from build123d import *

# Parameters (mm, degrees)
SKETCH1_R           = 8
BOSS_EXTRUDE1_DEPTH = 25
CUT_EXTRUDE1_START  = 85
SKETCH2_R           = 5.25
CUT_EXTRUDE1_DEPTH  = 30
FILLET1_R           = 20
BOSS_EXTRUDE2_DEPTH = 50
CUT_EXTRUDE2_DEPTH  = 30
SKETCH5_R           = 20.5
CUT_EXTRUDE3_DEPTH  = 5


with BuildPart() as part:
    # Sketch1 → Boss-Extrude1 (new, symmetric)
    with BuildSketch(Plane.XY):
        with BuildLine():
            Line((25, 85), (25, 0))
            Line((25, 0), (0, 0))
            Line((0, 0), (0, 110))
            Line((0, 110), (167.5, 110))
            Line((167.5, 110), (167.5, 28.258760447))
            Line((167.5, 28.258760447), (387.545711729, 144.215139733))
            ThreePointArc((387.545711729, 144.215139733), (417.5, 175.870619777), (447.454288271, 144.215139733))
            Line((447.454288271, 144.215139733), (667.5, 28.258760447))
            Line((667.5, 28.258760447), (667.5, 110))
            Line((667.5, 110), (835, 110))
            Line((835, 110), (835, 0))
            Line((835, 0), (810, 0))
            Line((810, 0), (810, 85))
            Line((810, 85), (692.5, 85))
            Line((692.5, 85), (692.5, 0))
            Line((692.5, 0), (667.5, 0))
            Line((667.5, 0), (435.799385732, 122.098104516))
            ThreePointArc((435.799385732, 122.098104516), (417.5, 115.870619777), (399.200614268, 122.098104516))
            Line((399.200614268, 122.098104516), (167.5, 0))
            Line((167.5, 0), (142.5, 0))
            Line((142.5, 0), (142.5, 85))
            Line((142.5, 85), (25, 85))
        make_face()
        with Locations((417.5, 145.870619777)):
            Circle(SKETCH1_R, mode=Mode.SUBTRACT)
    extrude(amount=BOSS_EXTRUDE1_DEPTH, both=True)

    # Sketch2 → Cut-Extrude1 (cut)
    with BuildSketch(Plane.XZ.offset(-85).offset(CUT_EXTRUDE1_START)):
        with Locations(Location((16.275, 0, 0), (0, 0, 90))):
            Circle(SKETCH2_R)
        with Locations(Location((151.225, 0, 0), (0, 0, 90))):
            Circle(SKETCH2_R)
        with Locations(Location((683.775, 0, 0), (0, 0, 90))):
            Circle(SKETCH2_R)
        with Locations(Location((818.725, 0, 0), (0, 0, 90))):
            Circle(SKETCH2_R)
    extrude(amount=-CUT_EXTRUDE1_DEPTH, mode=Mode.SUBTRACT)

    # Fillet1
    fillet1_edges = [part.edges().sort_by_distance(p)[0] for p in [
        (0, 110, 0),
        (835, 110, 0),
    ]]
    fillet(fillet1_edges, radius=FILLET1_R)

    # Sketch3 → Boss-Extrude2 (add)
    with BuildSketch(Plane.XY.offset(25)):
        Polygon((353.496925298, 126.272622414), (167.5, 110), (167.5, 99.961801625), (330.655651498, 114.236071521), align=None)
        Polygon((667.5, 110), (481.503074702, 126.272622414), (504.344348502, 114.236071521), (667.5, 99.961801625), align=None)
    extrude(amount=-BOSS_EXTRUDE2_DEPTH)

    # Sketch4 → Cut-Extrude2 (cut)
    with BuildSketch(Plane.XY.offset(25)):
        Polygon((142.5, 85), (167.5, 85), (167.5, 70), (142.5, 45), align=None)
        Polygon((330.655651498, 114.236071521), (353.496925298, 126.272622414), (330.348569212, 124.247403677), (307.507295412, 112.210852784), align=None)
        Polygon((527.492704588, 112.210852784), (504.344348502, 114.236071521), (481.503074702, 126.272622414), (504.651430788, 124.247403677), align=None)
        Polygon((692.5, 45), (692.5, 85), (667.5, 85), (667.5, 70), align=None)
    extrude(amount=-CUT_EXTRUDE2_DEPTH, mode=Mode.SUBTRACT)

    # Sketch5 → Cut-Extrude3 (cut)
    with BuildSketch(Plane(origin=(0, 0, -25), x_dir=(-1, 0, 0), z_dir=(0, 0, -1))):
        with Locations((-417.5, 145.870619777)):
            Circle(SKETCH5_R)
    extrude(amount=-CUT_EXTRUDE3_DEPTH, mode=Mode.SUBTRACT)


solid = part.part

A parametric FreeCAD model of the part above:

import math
import FreeCAD as App
import Part
import Sketcher
from FreeCAD import Vector
Q = App.Units.Quantity


def edges_at(feature, points):
    """Names of the edges that pass closest to the given points."""
    edges = feature.Shape.Edges
    near = lambda p: min(range(len(edges)), key=lambda i: edges[i].distToShape(Part.Vertex(*p))[0])
    return sorted({f"Edge{near(p) + 1}" for p in points})


def add_polygon(sketch, points):
    """Adds a closed chain of lines whose ends are joined by coincident constraints."""
    first, n = sketch.GeometryCount, len(points)
    for a, b in zip(points, points[1:] + points[:1]):
        sketch.addGeometry(Part.LineSegment(App.Vector(*a, 0), App.Vector(*b, 0)), False)
    for i in range(n):
        sketch.addConstraint(Sketcher.Constraint("Coincident", first + i, 2, first + (i + 1) % n, 1))

doc = App.newDocument("Part")
body = doc.addObject("PartDesign::Body", "Body")

# Sketch on XY plane
sketch1 = doc.addObject("Sketcher::SketchObject", "Sketch")
body.addObject(sketch1)
sketch1.AttachmentSupport = (doc.XY_Plane, [""])
sketch1.MapMode = "FlatFace"
sketch1.addGeometry(Part.LineSegment(Vector(25, 0, 0), Vector(25, 85, 0)), False)
sketch1.addGeometry(Part.LineSegment(Vector(25, 85, 0), Vector(142, 85, 0)), False)
sketch1.addGeometry(Part.LineSegment(Vector(142, 85, 0), Vector(142, 0, 0)), False)
sketch1.addGeometry(Part.LineSegment(Vector(142, 0, 0), Vector(168, 0, 0)), False)
sketch1.addGeometry(Part.LineSegment(Vector(168, 0, 0), Vector(399, 122, 0)), False)
sketch1.addGeometry(Part.ArcOfCircle(Part.Circle(Vector(418, 146, 0), Vector(0, 0, 1), 30), math.radians(-128), math.radians(-52)), False)
sketch1.addGeometry(Part.LineSegment(Vector(436, 122, 0), Vector(668, 0, 0)), False)
sketch1.addGeometry(Part.LineSegment(Vector(668, 0, 0), Vector(692, 0, 0)), False)
sketch1.addGeometry(Part.LineSegment(Vector(692, 0, 0), Vector(692, 85, 0)), False)
sketch1.addGeometry(Part.LineSegment(Vector(692, 85, 0), Vector(810, 85, 0)), False)
sketch1.addGeometry(Part.LineSegment(Vector(810, 85, 0), Vector(810, 0, 0)), False)
sketch1.addGeometry(Part.LineSegment(Vector(810, 0, 0), Vector(835, 0, 0)), False)
sketch1.addGeometry(Part.LineSegment(Vector(835, 0, 0), Vector(835, 110, 0)), False)
sketch1.addGeometry(Part.LineSegment(Vector(835, 110, 0), Vector(668, 110, 0)), False)
sketch1.addGeometry(Part.LineSegment(Vector(668, 110, 0), Vector(668, 28, 0)), False)
sketch1.addGeometry(Part.LineSegment(Vector(668, 28, 0), Vector(447, 144, 0)), False)
sketch1.addGeometry(Part.ArcOfCircle(Part.Circle(Vector(418, 146, 0), Vector(0, 0, 1), 30), math.radians(-3), math.radians(183)), False)
sketch1.addGeometry(Part.LineSegment(Vector(388, 144, 0), Vector(168, 28, 0)), False)
sketch1.addGeometry(Part.LineSegment(Vector(168, 28, 0), Vector(168, 110, 0)), False)
sketch1.addGeometry(Part.LineSegment(Vector(168, 110, 0), Vector(0, 110, 0)), False)
sketch1.addGeometry(Part.LineSegment(Vector(0, 110, 0), Vector(0, 0, 0)), False)
sketch1.addGeometry(Part.LineSegment(Vector(0, 0, 0), Vector(25, 0, 0)), False)
sketch1.addGeometry(Part.Circle(Vector(418, 146, 0), Vector(0, 0, 1), 8), False)
sketch1.addConstraint(Sketcher.Constraint("Coincident", 0, 2, 1, 1))
sketch1.addConstraint(Sketcher.Constraint("Coincident", 1, 2, 2, 1))
sketch1.addConstraint(Sketcher.Constraint("Coincident", 2, 2, 3, 1))
sketch1.addConstraint(Sketcher.Constraint("Coincident", 3, 2, 4, 1))
sketch1.addConstraint(Sketcher.Constraint("Coincident", 4, 2, 5, 1))
sketch1.addConstraint(Sketcher.Constraint("Coincident", 5, 2, 6, 1))
sketch1.addConstraint(Sketcher.Constraint("Coincident", 6, 2, 7, 1))
sketch1.addConstraint(Sketcher.Constraint("Coincident", 7, 2, 8, 1))
sketch1.addConstraint(Sketcher.Constraint("Coincident", 8, 2, 9, 1))
sketch1.addConstraint(Sketcher.Constraint("Coincident", 9, 2, 10, 1))
sketch1.addConstraint(Sketcher.Constraint("Coincident", 10, 2, 11, 1))
sketch1.addConstraint(Sketcher.Constraint("Coincident", 11, 2, 12, 1))
sketch1.addConstraint(Sketcher.Constraint("Coincident", 12, 2, 13, 1))
sketch1.addConstraint(Sketcher.Constraint("Coincident", 13, 2, 14, 1))
sketch1.addConstraint(Sketcher.Constraint("Coincident", 14, 2, 15, 1))
sketch1.addConstraint(Sketcher.Constraint("Coincident", 15, 2, 16, 1))
sketch1.addConstraint(Sketcher.Constraint("Coincident", 16, 2, 17, 1))
sketch1.addConstraint(Sketcher.Constraint("Coincident", 17, 2, 18, 1))
sketch1.addConstraint(Sketcher.Constraint("Coincident", 18, 2, 19, 1))
sketch1.addConstraint(Sketcher.Constraint("Coincident", 19, 2, 20, 1))
sketch1.addConstraint(Sketcher.Constraint("Coincident", 20, 2, 21, 1))
sketch1.addConstraint(Sketcher.Constraint("Coincident", 21, 2, 0, 1))
sketch1.addConstraint(Sketcher.Constraint("Vertical", 0))
sketch1.addConstraint(Sketcher.Constraint("Horizontal", 1))
sketch1.addConstraint(Sketcher.Constraint("Vertical", 2))
sketch1.addConstraint(Sketcher.Constraint("Horizontal", 3))
sketch1.addConstraint(Sketcher.Constraint("Horizontal", 7))
sketch1.addConstraint(Sketcher.Constraint("Vertical", 8))
sketch1.addConstraint(Sketcher.Constraint("Horizontal", 9))
sketch1.addConstraint(Sketcher.Constraint("Vertical", 10))
sketch1.addConstraint(Sketcher.Constraint("Horizontal", 11))
sketch1.addConstraint(Sketcher.Constraint("Vertical", 12))
sketch1.addConstraint(Sketcher.Constraint("Horizontal", 13))
sketch1.addConstraint(Sketcher.Constraint("Vertical", 14))
sketch1.addConstraint(Sketcher.Constraint("Vertical", 18))
sketch1.addConstraint(Sketcher.Constraint("Horizontal", 19))
sketch1.addConstraint(Sketcher.Constraint("Vertical", 20))
sketch1.addConstraint(Sketcher.Constraint("Horizontal", 21))
sketch1.addConstraint(Sketcher.Constraint("Coincident", 20, 2, -1, 1))
sketch1.addConstraint(Sketcher.Constraint("Coincident", 16, 3, 5, 3))
sketch1.addConstraint(Sketcher.Constraint("Coincident", 22, 3, 5, 3))
sketch1.addConstraint(Sketcher.Constraint("Equal", 5, 16))
sketch1.addConstraint(Sketcher.Constraint("PointOnObject", 2, 2, -1))
sketch1.addConstraint(Sketcher.Constraint("PointOnObject", 6, 2, -1))
sketch1.addConstraint(Sketcher.Constraint("PointOnObject", 10, 2, -1))
sketch1.addConstraint(Sketcher.Constraint("Parallel", 6, 15))
sketch1.addConstraint(Sketcher.Constraint("Parallel", 4, 17))
sketch1.addConstraint(Sketcher.Constraint("Horizontal", 4, 2, 5, 2))
sketch1.addConstraint(Sketcher.Constraint("Horizontal", 1, 2, 8, 2))
sketch1.addConstraint(Sketcher.Constraint("Horizontal", 15, 2, 16, 2))
sketch1.addConstraint(Sketcher.Constraint("Horizontal", 14, 2, 17, 2))
sketch1.addConstraint(Sketcher.Constraint("Horizontal", 13, 2, 18, 2))
sketch1.addConstraint(Sketcher.Constraint("Vertical", 6, 2, 13, 2))
sketch1.addConstraint(Sketcher.Constraint("Vertical", 3, 2, 17, 2))
sketch1.addConstraint(Sketcher.Constraint("Equal", 3, 7))
sketch1.addConstraint(Sketcher.Constraint("Equal", 1, 9))
sketch1.addConstraint(Sketcher.Constraint("Equal", 7, 11))
sketch1.addConstraint(Sketcher.Constraint("Equal", 13, 19))
sketch1.addConstraint(Sketcher.Constraint("Diameter", 22, 16.0))
sketch1.addConstraint(Sketcher.Constraint("Radius", 5, 30.0))
sketch1.addConstraint(Sketcher.Constraint("DistanceX", 3, 1, 3, 2, 25.0))
sketch1.addConstraint(Sketcher.Constraint("DistanceY", 0, 1, 0, 2, 85.0))
sketch1.addConstraint(Sketcher.Constraint("DistanceY", 12, 1, 12, 2, 110.0))
sketch1.addConstraint(Sketcher.Constraint("DistanceX", 1, 1, 1, 2, 117.5))
sketch1.addConstraint(Sketcher.Constraint("DistanceX", -1, 1, 9, 2, 810.0))
sketch1.addConstraint(Sketcher.Constraint("DistanceY", 14, 2, 14, 1, 81.74124))
sketch1.addConstraint(Sketcher.Constraint("DistanceY", -1, 1, 5, 3, 145.87062))
sketch1.addConstraint(Sketcher.Constraint("DistanceX", -1, 1, 15, 2, 447.454288))
pad1 = doc.addObject("PartDesign::Pad", "Pad")
body.addObject(pad1)
pad1.Profile = sketch1
pad1.Length = 50
pad1.Midplane = True

# Sketch on XZ plane
sketch2 = doc.addObject("Sketcher::SketchObject", "Sketch001")
body.addObject(sketch2)
sketch2.AttachmentSupport = (doc.XZ_Plane, [""])
sketch2.MapMode = "FlatFace"
sketch2.addGeometry(Part.Circle(Vector(16, 0, 0), Vector(0, 0, 1), 5), False)
sketch2.addGeometry(Part.Circle(Vector(151, 0, 0), Vector(0, 0, 1), 5), False)
sketch2.addGeometry(Part.Circle(Vector(684, 0, 0), Vector(0, 0, 1), 5), False)
sketch2.addGeometry(Part.Circle(Vector(819, 0, 0), Vector(0, 0, 1), 5), False)
sketch2.addConstraint(Sketcher.Constraint("Equal", 0, 1))
sketch2.addConstraint(Sketcher.Constraint("Equal", 1, 2))
sketch2.addConstraint(Sketcher.Constraint("Equal", 2, 3))
sketch2.addConstraint(Sketcher.Constraint("PointOnObject", 0, 3, -1))
sketch2.addConstraint(Sketcher.Constraint("PointOnObject", 1, 3, -1))
sketch2.addConstraint(Sketcher.Constraint("PointOnObject", 2, 3, -1))
sketch2.addConstraint(Sketcher.Constraint("PointOnObject", 3, 3, -1))
sketch2.addConstraint(Sketcher.Constraint("Diameter", 0, 10.5))
sketch2.addConstraint(Sketcher.Constraint("DistanceX", 0, 3, 2, 3, 667.5))
sketch2.addConstraint(Sketcher.Constraint("DistanceX", 1, 3, 3, 3, 667.5))
sketch2.addConstraint(Sketcher.Constraint("DistanceX", 0, 3, 1, 3, 134.95))
sketch2.addConstraint(Sketcher.Constraint("DistanceX", -1, 1, 0, 3, 16.275))
pocket1 = doc.addObject("PartDesign::Pocket", "Pocket")
body.addObject(pocket1)
pocket1.Profile = sketch2
pocket1.Length = 30
doc.recompute()

fillet = doc.addObject("PartDesign::Fillet", "Fillet")
body.addObject(fillet)
fillet.Base = (pocket1, edges_at(pocket1, [(0, 110, 0), (835, 110, 0)]))
fillet.Radius = 20

# Sketch on XY plane
sketch3 = doc.addObject("Sketcher::SketchObject", "Sketch002")
body.addObject(sketch3)
sketch3.AttachmentSupport = (doc.XY_Plane, [""])
sketch3.MapMode = "FlatFace"
sketch3.AttachmentOffset = App.Placement(Vector(0, 0, 25), App.Rotation())
add_polygon(sketch3, [(353, 126), (168, 110), (168, 100), (331, 114)])  # lines 0-3
add_polygon(sketch3, [(668, 110), (482, 126), (504, 114), (668, 100)])  # lines 4-7
sketch3.addConstraint(Sketcher.Constraint("Vertical", 1))
sketch3.addConstraint(Sketcher.Constraint("Vertical", 7))
sketch3.addConstraint(Sketcher.Constraint("Parallel", 0, 2))
sketch3.addConstraint(Sketcher.Constraint("Parallel", 4, 6))
sketch3.addConstraint(Sketcher.Constraint("Horizontal", 3, 2, 4, 2))
sketch3.addConstraint(Sketcher.Constraint("Horizontal", 2, 2, 5, 2))
sketch3.addConstraint(Sketcher.Constraint("Horizontal", 1, 2, 6, 2))
sketch3.addConstraint(Sketcher.Constraint("Horizontal", 0, 2, 7, 2))
sketch3.addConstraint(Sketcher.Constraint("Equal", 0, 4))
sketch3.addConstraint(Sketcher.Constraint("Angle", 0, Q("-175 deg")))
sketch3.addConstraint(Sketcher.Constraint("DistanceY", -1, 1, 0, 2, 110.0))
sketch3.addConstraint(Sketcher.Constraint("DistanceX", 1, 2, 6, 2, 500.0))
sketch3.addConstraint(Sketcher.Constraint("DistanceX", -1, 1, 0, 2, 167.5))
sketch3.addConstraint(Sketcher.Constraint("DistanceY", 1, 2, 1, 1, 10.038198))
sketch3.addConstraint(Sketcher.Constraint("Distance", 2, 163.77888))
sketch3.addConstraint(Sketcher.Constraint("DistanceY", 2, 2, 3, 2, 12.036551))
pad2 = doc.addObject("PartDesign::Pad", "Pad001")
body.addObject(pad2)
pad2.Profile = sketch3
pad2.Length = 50
pad2.Reversed = True

# Sketch on XY plane
sketch4 = doc.addObject("Sketcher::SketchObject", "Sketch003")
body.addObject(sketch4)
sketch4.AttachmentSupport = (doc.XY_Plane, [""])
sketch4.MapMode = "FlatFace"
sketch4.AttachmentOffset = App.Placement(Vector(0, 0, 25), App.Rotation())
add_polygon(sketch4, [(168, 85), (142, 85), (142, 45), (168, 70)])  # lines 0-3
add_polygon(sketch4, [(331, 114), (353, 126), (330, 124), (308, 112)])  # lines 4-7
add_polygon(sketch4, [(504, 114), (527, 112), (505, 124), (482, 126)])  # lines 8-11
add_polygon(sketch4, [(692, 45), (692, 85), (668, 85), (668, 70)])  # lines 12-15
sketch4.addConstraint(Sketcher.Constraint("Horizontal", 0))
sketch4.addConstraint(Sketcher.Constraint("Vertical", 1))
sketch4.addConstraint(Sketcher.Constraint("Vertical", 3))
sketch4.addConstraint(Sketcher.Constraint("Vertical", 12))
sketch4.addConstraint(Sketcher.Constraint("Horizontal", 13))
sketch4.addConstraint(Sketcher.Constraint("Vertical", 14))
sketch4.addConstraint(Sketcher.Constraint("Parallel", 4, 6))
sketch4.addConstraint(Sketcher.Constraint("Parallel", 5, 7))
sketch4.addConstraint(Sketcher.Constraint("Parallel", 8, 10))
sketch4.addConstraint(Sketcher.Constraint("Parallel", 9, 11))
sketch4.addConstraint(Sketcher.Constraint("Perpendicular", 2, 15))
sketch4.addConstraint(Sketcher.Constraint("Horizontal", 6, 2, 8, 2))
sketch4.addConstraint(Sketcher.Constraint("Horizontal", 5, 2, 9, 2))
sketch4.addConstraint(Sketcher.Constraint("Horizontal", 4, 2, 10, 2))
sketch4.addConstraint(Sketcher.Constraint("Horizontal", 3, 2, 12, 2))
sketch4.addConstraint(Sketcher.Constraint("Horizontal", 2, 2, 14, 2))
sketch4.addConstraint(Sketcher.Constraint("Horizontal", 1, 2, 15, 2))
sketch4.addConstraint(Sketcher.Constraint("Equal", 0, 13))
sketch4.addConstraint(Sketcher.Constraint("Equal", 7, 8))
sketch4.addConstraint(Sketcher.Constraint("Equal", 6, 9))
sketch4.addConstraint(Sketcher.Constraint("DistanceX", 0, 2, 0, 1, 25.0))
sketch4.addConstraint(Sketcher.Constraint("DistanceY", 1, 2, 1, 1, 40.0))
sketch4.addConstraint(Sketcher.Constraint("Angle", 5, Q("-175 deg")))
sketch4.addConstraint(Sketcher.Constraint("DistanceY", -1, 1, 0, 2, 85.0))
sketch4.addConstraint(Sketcher.Constraint("DistanceX", -1, 1, 0, 2, 142.5))
sketch4.addConstraint(Sketcher.Constraint("DistanceX", -1, 1, 12, 2, 692.5))
sketch4.addConstraint(Sketcher.Constraint("Distance", 5, 23.236779))
sketch4.addConstraint(Sketcher.Constraint("DistanceX", -1, 1, 5, 2, 330.348569))
sketch4.addConstraint(Sketcher.Constraint("DistanceX", -1, 1, 7, 2, 330.655651))
sketch4.addConstraint(Sketcher.Constraint("DistanceY", -1, 1, 7, 2, 114.236072))
sketch4.addConstraint(Sketcher.Constraint("DistanceX", -1, 1, 9, 2, 504.651431))
sketch4.addConstraint(Sketcher.Constraint("DistanceY", 6, 2, 5, 2, 12.036551))
pocket2 = doc.addObject("PartDesign::Pocket", "Pocket001")
body.addObject(pocket2)
pocket2.Profile = sketch4
pocket2.Length = 30

# Sketch on XY plane
sketch5 = doc.addObject("Sketcher::SketchObject", "Sketch004")
body.addObject(sketch5)
sketch5.AttachmentSupport = (doc.XY_Plane, [""])
sketch5.MapMode = "FlatFace"
sketch5.AttachmentOffset = App.Placement(Vector(0, 0, -25), App.Rotation())
sketch5.addGeometry(Part.Circle(Vector(418, 146, 0), Vector(0, 0, 1), 20), False)
sketch5.addConstraint(Sketcher.Constraint("Diameter", 0, 41.0))
sketch5.addConstraint(Sketcher.Constraint("DistanceX", -1, 1, 0, 3, 417.5))
sketch5.addConstraint(Sketcher.Constraint("DistanceY", -1, 1, 0, 3, 145.87062))
pocket3 = doc.addObject("PartDesign::Pocket", "Pocket002")
body.addObject(pocket3)
pocket3.Profile = sketch5
pocket3.Length = 5
pocket3.Reversed = True

doc.recompute()
